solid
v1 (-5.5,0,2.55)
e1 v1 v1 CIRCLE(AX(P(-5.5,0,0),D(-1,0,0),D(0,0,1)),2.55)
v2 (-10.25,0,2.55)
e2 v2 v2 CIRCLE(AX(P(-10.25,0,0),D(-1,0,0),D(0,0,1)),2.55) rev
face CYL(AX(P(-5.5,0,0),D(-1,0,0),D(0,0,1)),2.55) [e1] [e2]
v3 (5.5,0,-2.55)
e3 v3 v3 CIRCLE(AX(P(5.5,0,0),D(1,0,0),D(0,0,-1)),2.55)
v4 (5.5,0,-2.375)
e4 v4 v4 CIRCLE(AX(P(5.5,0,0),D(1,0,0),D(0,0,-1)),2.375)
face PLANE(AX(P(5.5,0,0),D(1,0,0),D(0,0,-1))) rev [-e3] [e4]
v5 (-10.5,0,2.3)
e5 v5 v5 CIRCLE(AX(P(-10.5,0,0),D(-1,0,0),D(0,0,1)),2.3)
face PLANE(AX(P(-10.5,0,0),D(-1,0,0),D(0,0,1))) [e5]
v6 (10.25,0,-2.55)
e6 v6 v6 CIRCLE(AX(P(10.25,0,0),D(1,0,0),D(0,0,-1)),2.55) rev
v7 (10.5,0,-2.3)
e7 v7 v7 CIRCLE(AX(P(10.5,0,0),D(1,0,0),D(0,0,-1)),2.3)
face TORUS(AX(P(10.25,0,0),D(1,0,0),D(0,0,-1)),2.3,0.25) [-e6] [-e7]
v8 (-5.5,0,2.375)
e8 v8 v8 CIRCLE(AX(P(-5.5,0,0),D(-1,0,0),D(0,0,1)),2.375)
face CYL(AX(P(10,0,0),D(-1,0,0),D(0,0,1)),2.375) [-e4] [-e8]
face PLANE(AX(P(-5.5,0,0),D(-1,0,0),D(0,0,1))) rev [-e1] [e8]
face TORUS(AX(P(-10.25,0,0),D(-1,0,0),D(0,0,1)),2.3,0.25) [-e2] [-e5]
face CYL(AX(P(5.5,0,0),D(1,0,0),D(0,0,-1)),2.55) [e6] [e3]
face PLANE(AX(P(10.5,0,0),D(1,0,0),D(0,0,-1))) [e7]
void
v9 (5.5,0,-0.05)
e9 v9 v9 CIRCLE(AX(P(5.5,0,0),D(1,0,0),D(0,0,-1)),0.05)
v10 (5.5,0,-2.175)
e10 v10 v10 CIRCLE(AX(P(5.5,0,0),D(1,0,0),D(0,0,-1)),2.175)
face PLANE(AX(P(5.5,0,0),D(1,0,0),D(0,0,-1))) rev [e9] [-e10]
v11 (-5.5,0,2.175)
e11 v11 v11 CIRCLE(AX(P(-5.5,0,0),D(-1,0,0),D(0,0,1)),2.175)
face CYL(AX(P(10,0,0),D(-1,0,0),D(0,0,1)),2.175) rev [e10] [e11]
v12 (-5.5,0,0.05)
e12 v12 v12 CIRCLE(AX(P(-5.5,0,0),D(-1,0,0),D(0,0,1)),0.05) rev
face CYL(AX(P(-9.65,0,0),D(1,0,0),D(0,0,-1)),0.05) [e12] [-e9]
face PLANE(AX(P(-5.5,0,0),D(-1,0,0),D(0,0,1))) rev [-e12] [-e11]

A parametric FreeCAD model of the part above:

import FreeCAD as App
import Part
import Sketcher

V = App.Vector


def edges_at(feature, points):
    """Names of the edges that pass closest to the given points."""
    edges = feature.Shape.Edges
    near = lambda p: min(range(len(edges)), key=lambda i: edges[i].distToShape(Part.Vertex(*p))[0])
    return sorted({f"Edge{near(p) + 1}" for p in points})


def faces_at(feature, points):
    """Names of the faces that lie closest to the given points."""
    faces = feature.Shape.Faces
    near = lambda p: min(range(len(faces)), key=lambda i: faces[i].distToShape(Part.Vertex(*p))[0])
    return sorted({f"Face{near(p) + 1}" for p in points})

doc = App.newDocument("Part")
body = doc.addObject("PartDesign::Body", "Body")

sketch1 = body.newObject("Sketcher::SketchObject", "Sketch")
sketch1.AttachmentSupport = (doc.getObject("YZ_Plane"), [""])
sketch1.MapMode = "FlatFace"
sketch1.addGeometry(Part.Circle(V(0, 0, 0), V(0, 0, 1), 2.375), False)
sketch1.addConstraint(Sketcher.Constraint("Coincident", 0, 3, -1, 1))
sketch1.addConstraint(Sketcher.Constraint("Diameter", 0, 4.75))
pad1 = body.newObject("PartDesign::Pad", "Pad")
pad1.Profile = sketch1
pad1.Length = 20
pad1.Midplane = True
doc.recompute()

thickness = body.newObject("PartDesign::Thickness", "Thickness")
thickness.Base = (pad1, faces_at(pad1, [(10, 0, 0), (-10, 0, 0)]))
thickness.Value = 0.2
thickness.Reversed = True
thickness.Join = "Intersection"
body2 = doc.addObject("PartDesign::Body", "Body001")

sketch2 = body2.newObject("Sketcher::SketchObject", "Sketch001")
sketch2.AttachmentSupport = (doc.getObject("YZ_Plane001"), [""])
sketch2.MapMode = "FlatFace"
sketch2.addGeometry(Part.Circle(V(0, 0, 0), V(0, 0, 1), 0.05), False)
sketch2.addConstraint(Sketcher.Constraint("Coincident", 0, 3, -1, 1))
sketch2.addConstraint(Sketcher.Constraint("Diameter", 0, 0.1))
pad2 = body2.newObject("PartDesign::Pad", "Pad001")
pad2.Profile = sketch2
pad2.Type = "TwoLengths"
pad2.Length = 9.65
pad2.Length2 = 9.65
body.AllowCompound = True
doc.recompute()

boolean = body.newObject("PartDesign::Boolean", "Boolean")
boolean.Type = "Fuse"
boolean.addObjects([body2])

sketch3 = body.newObject("Sketcher::SketchObject", "Sketch002")
sketch3.AttachmentSupport = (doc.getObject("YZ_Plane"), [""])
sketch3.MapMode = "FlatFace"
sketch3.AttachmentOffset = App.Placement(V(0, 0, 10.5), App.Rotation())
sketch3.addGeometry(Part.Circle(V(0, 0, 0), V(0, 0, 1), 2.55), False)
sketch3.addConstraint(Sketcher.Constraint("Coincident", 0, 3, -1, 1))
sketch3.addConstraint(Sketcher.Constraint("Diameter", 0, 5.1))
pad3 = body.newObject("PartDesign::Pad", "Pad002")
pad3.Profile = sketch3
pad3.Length = 5
pad3.Reversed = True
doc.recompute()

fillet = body.newObject("PartDesign::Fillet", "Fillet")
fillet.Base = (pad3, edges_at(pad3, [(10.5, 0, 2.55)]))
fillet.Radius = 0.25

sketch4 = body.newObject("Sketcher::SketchObject", "Sketch003")
sketch4.AttachmentSupport = (doc.getObject("YZ_Plane"), [""])
sketch4.MapMode = "FlatFace"
sketch4.AttachmentOffset = App.Placement(V(0, 0, -10.5), App.Rotation())
sketch4.addGeometry(Part.Circle(V(0, 0, 0), V(0, 0, 1), 2.55), False)
sketch4.addConstraint(Sketcher.Constraint("Coincident", 0, 3, -1, 1))
sketch4.addConstraint(Sketcher.Constraint("Diameter", 0, 5.1))
pad4 = body.newObject("PartDesign::Pad", "Pad003")
pad4.Profile = sketch4
pad4.Length = 5
doc.recompute()

fillet2 = body.newObject("PartDesign::Fillet", "Fillet001")
fillet2.Base = (pad4, edges_at(pad4, [(-10.5, 0, 2.55)]))
fillet2.Radius = 0.25

doc.recompute()
